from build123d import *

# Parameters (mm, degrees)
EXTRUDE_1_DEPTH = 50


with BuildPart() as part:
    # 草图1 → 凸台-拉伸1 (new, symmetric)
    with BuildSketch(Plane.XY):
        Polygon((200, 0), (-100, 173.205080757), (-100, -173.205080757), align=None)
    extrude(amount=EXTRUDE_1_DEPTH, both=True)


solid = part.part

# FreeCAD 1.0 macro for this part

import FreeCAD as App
import Part
import Sketcher

V = App.Vector
Q = App.Units.Quantity

doc = App.newDocument("Part")
body = doc.addObject("PartDesign::Body", "Body")

sketch1 = doc.addObject("Sketcher::SketchObject", "Sketch")
body.addObject(sketch1)
sketch1.AttachmentSupport = (doc.XY_Plane, [""])
sketch1.MapMode = "FlatFace"
sketch1.addGeometry(Part.LineSegment(V(200, 0, 0), V(-100, 173.205081, 0)), False)
sketch1.addGeometry(Part.LineSegment(V(-100, 173.205081, 0), V(-100, -173.205081, 0)), False)
sketch1.addGeometry(Part.LineSegment(V(-100, -173.205081, 0), V(200, 0, 0)), False)
sketch1.addConstraint(Sketcher.Constraint("Coincident", 0, 2, 1, 1))
sketch1.addConstraint(Sketcher.Constraint("Coincident", 1, 2, 2, 1))
sketch1.addConstraint(Sketcher.Constraint("Coincident", 2, 2, 0, 1))
sketch1.addConstraint(Sketcher.Constraint("Vertical", 1))
sketch1.addConstraint(Sketcher.Constraint("PointOnObject", 2, 2, -1))
sketch1.addConstraint(Sketcher.Constraint("Equal", 0, 2))
sketch1.addConstraint(Sketcher.Constraint("Angle", 0, Q("150 deg")))
sketch1.addConstraint(Sketcher.Constraint("DistanceX", 0, 2, -1, 1, 100.0))
sketch1.addConstraint(Sketcher.Constraint("DistanceX", -1, 1, 2, 2, 200.0))
pad1 = doc.addObject("PartDesign::Pad", "Pad")
body.addObject(pad1)
pad1.Profile = sketch1
pad1.Length = 100
pad1.Midplane = True

doc.recompute()
